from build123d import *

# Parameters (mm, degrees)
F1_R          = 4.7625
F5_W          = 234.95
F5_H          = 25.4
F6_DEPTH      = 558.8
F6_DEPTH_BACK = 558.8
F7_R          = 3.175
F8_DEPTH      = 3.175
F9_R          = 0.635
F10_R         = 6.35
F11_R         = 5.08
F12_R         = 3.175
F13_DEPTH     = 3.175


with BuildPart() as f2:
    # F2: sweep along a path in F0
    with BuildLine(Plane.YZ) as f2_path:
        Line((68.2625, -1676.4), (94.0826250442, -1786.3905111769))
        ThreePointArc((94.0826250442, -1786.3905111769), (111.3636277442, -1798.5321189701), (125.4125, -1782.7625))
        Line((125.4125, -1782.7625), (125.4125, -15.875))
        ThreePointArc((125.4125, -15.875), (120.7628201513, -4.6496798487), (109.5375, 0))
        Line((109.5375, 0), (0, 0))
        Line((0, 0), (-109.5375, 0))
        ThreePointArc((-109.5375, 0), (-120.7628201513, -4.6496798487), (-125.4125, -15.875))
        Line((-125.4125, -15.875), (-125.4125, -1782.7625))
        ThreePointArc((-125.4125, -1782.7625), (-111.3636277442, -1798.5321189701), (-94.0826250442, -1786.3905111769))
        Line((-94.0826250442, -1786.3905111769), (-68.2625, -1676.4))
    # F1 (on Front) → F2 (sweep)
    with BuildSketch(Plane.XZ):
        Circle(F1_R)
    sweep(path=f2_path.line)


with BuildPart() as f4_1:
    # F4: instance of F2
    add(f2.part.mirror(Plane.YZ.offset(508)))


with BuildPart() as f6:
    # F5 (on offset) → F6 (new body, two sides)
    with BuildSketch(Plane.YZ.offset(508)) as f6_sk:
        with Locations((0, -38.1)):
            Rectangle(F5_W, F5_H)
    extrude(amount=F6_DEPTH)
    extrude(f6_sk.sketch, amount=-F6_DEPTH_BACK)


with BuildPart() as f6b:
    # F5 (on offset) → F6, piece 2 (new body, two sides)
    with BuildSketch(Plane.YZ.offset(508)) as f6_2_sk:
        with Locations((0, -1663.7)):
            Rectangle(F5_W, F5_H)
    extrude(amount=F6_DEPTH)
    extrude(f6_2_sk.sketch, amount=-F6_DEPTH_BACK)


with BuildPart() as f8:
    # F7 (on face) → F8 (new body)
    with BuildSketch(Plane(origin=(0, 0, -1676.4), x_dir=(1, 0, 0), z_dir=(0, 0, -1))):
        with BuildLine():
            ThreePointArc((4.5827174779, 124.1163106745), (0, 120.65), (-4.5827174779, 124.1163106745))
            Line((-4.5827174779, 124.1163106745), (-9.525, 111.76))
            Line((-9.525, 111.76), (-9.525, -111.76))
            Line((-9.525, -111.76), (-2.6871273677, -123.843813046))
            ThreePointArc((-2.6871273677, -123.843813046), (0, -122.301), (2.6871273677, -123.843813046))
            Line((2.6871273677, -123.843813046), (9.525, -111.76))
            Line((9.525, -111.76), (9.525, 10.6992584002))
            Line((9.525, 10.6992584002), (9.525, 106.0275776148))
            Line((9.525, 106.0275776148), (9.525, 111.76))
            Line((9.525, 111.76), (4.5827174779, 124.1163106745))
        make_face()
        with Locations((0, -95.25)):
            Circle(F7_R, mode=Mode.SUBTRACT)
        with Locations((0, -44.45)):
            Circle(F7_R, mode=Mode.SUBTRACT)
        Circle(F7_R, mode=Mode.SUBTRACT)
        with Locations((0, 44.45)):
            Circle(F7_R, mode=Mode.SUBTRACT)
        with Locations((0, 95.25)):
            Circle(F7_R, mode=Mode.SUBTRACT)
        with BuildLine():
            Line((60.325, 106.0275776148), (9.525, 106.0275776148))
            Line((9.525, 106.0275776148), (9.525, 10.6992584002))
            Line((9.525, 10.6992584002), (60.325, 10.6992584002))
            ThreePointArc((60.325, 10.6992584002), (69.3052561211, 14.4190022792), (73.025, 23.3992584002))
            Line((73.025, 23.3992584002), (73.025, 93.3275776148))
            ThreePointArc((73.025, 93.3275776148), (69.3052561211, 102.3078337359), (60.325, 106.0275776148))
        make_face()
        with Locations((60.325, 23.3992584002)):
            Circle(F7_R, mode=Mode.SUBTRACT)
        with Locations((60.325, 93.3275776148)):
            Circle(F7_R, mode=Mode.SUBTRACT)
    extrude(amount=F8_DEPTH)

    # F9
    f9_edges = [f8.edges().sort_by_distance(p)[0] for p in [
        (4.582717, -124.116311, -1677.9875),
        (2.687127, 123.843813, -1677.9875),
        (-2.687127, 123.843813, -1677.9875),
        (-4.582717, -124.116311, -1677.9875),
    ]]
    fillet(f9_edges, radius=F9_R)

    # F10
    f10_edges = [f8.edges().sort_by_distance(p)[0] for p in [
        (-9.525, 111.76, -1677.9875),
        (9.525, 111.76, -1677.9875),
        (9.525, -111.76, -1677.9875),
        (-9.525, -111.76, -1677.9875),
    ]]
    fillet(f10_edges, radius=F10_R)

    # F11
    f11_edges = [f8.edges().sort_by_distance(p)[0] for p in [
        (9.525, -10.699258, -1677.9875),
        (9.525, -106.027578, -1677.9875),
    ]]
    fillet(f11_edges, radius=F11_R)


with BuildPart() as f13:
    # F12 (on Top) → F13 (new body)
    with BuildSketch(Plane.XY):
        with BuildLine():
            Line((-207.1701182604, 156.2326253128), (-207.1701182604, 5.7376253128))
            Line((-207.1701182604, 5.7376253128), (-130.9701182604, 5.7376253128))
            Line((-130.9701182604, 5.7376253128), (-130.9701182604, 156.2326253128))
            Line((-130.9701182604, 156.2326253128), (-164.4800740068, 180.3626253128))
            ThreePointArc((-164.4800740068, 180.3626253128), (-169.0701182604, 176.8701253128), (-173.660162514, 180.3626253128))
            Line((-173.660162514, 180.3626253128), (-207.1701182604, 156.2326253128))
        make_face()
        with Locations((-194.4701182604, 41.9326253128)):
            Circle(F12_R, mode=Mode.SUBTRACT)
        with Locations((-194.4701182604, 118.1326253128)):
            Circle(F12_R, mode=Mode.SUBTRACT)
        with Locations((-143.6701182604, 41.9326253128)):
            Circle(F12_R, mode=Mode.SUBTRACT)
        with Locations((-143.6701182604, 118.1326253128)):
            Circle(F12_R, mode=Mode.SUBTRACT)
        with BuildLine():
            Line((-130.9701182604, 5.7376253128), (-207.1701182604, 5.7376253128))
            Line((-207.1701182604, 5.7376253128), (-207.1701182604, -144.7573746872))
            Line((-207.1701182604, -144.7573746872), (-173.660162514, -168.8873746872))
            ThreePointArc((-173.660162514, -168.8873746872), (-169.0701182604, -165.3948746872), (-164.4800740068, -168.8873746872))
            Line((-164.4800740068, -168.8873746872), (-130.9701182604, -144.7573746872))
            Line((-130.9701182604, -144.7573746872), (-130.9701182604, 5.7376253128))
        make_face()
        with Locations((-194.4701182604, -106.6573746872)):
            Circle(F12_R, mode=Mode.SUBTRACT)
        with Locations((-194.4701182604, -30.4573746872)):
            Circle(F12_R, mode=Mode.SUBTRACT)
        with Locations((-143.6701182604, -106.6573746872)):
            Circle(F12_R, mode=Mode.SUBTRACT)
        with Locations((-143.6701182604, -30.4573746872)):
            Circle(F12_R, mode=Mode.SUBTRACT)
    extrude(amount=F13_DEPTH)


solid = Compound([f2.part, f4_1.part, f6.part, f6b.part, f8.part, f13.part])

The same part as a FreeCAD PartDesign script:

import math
import FreeCAD as App
import Part
import Sketcher
from FreeCAD import Vector
Q = App.Units.Quantity


def edges_at(feature, points):
    """Names of the edges that pass closest to the given points."""
    edges = feature.Shape.Edges
    near = lambda p: min(range(len(edges)), key=lambda i: edges[i].distToShape(Part.Vertex(*p))[0])
    return sorted({f"Edge{near(p) + 1}" for p in points})


def add_polygon(sketch, points):
    """Adds a closed chain of lines whose ends are joined by coincident constraints."""
    first, n = sketch.GeometryCount, len(points)
    for a, b in zip(points, points[1:] + points[:1]):
        sketch.addGeometry(Part.LineSegment(App.Vector(*a, 0), App.Vector(*b, 0)), False)
    for i in range(n):
        sketch.addConstraint(Sketcher.Constraint("Coincident", first + i, 2, first + (i + 1) % n, 1))

doc = App.newDocument("Part")
body = doc.addObject("PartDesign::Body", "Body")

# Sketch on XZ plane
sketch1 = body.newObject("Sketcher::SketchObject", "Sketch")
sketch1.AttachmentSupport = (doc.getObject("XZ_Plane"), [""])
sketch1.MapMode = "FlatFace"
sketch1.addGeometry(Part.Circle(Vector(0, 0, 0), Vector(0, 0, 1), 4.8), False)
sketch1.addConstraint([
    Sketcher.Constraint("Coincident", 0, 3, -1, 1),
    Sketcher.Constraint("Diameter", 0, Q("0.375 in")),
])

# Sketch on YZ plane
sketch2 = body.newObject("Sketcher::SketchObject", "Sketch001")
sketch2.AttachmentSupport = (doc.getObject("YZ_Plane"), [""])
sketch2.MapMode = "FlatFace"
sketch2.addGeometry([
    Part.LineSegment(Vector(68, -1676, 0), Vector(94, -1786, 0)),  # 0
    Part.ArcOfCircle(Part.Circle(Vector(110, -1783, 0), Vector(0, 0, 1), 16), math.radians(-167), math.radians(0)),  # 1
    Part.LineSegment(Vector(125, -1783, 0), Vector(125, -16, 0)),  # 2
    Part.ArcOfCircle(Part.Circle(Vector(110, -16, 0), Vector(0, 0, 1), 16), math.radians(0), math.radians(90)),  # 3
    Part.LineSegment(Vector(110, 0, 0), Vector(-110, 0, 0)),  # 4
    Part.ArcOfCircle(Part.Circle(Vector(-110, -16, 0), Vector(0, 0, 1), 16), math.radians(90), math.radians(180)),  # 5
    Part.LineSegment(Vector(-125, -16, 0), Vector(-125, -1783, 0)),  # 6
    Part.ArcOfCircle(Part.Circle(Vector(-110, -1783, 0), Vector(0, 0, 1), 16), math.radians(180), math.radians(347)),  # 7
    Part.LineSegment(Vector(-94, -1786, 0), Vector(-68, -1676, 0)),  # 8
], False)
sketch2.addConstraint([
    Sketcher.Constraint("Tangent", 0, 2, 1, 1),
    Sketcher.Constraint("Tangent", 1, 2, 2, 1),
    Sketcher.Constraint("Tangent", 2, 2, 3, 1),
    Sketcher.Constraint("Tangent", 3, 2, 4, 1),
    Sketcher.Constraint("Tangent", 4, 2, 5, 1),
    Sketcher.Constraint("Tangent", 5, 2, 6, 1),
    Sketcher.Constraint("Tangent", 6, 2, 7, 1),
    Sketcher.Constraint("Tangent", 7, 2, 8, 1),
    Sketcher.Constraint("Vertical", 2),
    Sketcher.Constraint("Horizontal", 4),
    Sketcher.Constraint("Vertical", 6),
    Sketcher.Constraint("Equal", 1, 3),
    Sketcher.Constraint("Equal", 3, 5),
    Sketcher.Constraint("Equal", 5, 7),
    Sketcher.Constraint("Symmetric", 3, 2, 4, 2, -1, 1),
    Sketcher.Constraint("Symmetric", 0, 2, 7, 2, -2),
    Sketcher.Constraint("Horizontal", 0, 1, 8, 2),
    Sketcher.Constraint("DistanceY", 0, 1, -1, 1, Q("66 in")),
    Sketcher.Constraint("Radius", 1, Q("0.625 in")),
    Sketcher.Constraint("DistanceX", 7, 3, 0, 1, Q("7 in")),
    Sketcher.Constraint("DistanceX", 4, 2, 4, 1, Q("8.625 in")),
    Sketcher.Constraint("DistanceY", 2, 1, 2, 2, Q("69.5625 in")),
])
doc.recompute()

additivepipe = body.newObject("PartDesign::AdditivePipe", "AdditivePipe")
additivepipe.Profile = sketch1
additivepipe.Spine = (sketch2, ["Edge1", "Edge2", "Edge3", "Edge4", "Edge5", "Edge6", "Edge7", "Edge8", "Edge9"])
body2 = doc.addObject("PartDesign::Body", "Body001")
doc.recompute()

mirroring = doc.addObject("Part::Mirroring", "Mirroring")
mirroring.Source = body
mirroring.Base = Vector(508, 0, 0)
mirroring.Normal = Vector(1, 0, 0)
body2.BaseFeature = mirroring
doc.recompute()
body3 = doc.addObject("PartDesign::Body", "Body002")

# Sketch on YZ plane
sketch3 = body3.newObject("Sketcher::SketchObject", "Sketch002")
sketch3.AttachmentSupport = (doc.getObject("YZ_Plane002"), [""])
sketch3.MapMode = "FlatFace"
sketch3.AttachmentOffset = App.Placement(Vector(0, 0, 20 * 25.4), App.Rotation())
add_polygon(sketch3, [(-117, -25), (-117, -51), (117, -51), (117, -25)])  # lines 0-3
sketch3.addConstraint([
    Sketcher.Constraint("Vertical", 0),
    Sketcher.Constraint("Horizontal", 1),
    Sketcher.Constraint("Vertical", 2),
    Sketcher.Constraint("Horizontal", 3),
    Sketcher.Constraint("DistanceY", 0, 2, 0, 1, Q("1 in")),
    Sketcher.Constraint("DistanceY", 0, 2, -1, 1, Q("2 in")),
    Sketcher.Constraint("DistanceX", 1, 1, 1, 2, Q("9.25 in")),
    Sketcher.Constraint("DistanceX", 0, 2, -1, 1, Q("4.625 in")),
])
pad1 = body3.newObject("PartDesign::Pad", "Pad")
pad1.Profile = sketch3
pad1.Type = "TwoLengths"
pad1.Length = Q("22 in")
pad1.Length2 = Q("22 in")
body4 = doc.addObject("PartDesign::Body", "Body003")

# Sketch on YZ plane
sketch4 = body4.newObject("Sketcher::SketchObject", "Sketch003")
sketch4.AttachmentSupport = (doc.getObject("YZ_Plane003"), [""])
sketch4.MapMode = "FlatFace"
sketch4.AttachmentOffset = App.Placement(Vector(0, 0, 20 * 25.4), App.Rotation())
add_polygon(sketch4, [(-117, -1651), (-117, -1676), (117, -1676), (117, -1651)])  # lines 0-3
sketch4.addConstraint([
    Sketcher.Constraint("Vertical", 0),
    Sketcher.Constraint("Horizontal", 1),
    Sketcher.Constraint("Vertical", 2),
    Sketcher.Constraint("Horizontal", 3),
    Sketcher.Constraint("DistanceY", 0, 2, 0, 1, Q("1 in")),
    Sketcher.Constraint("DistanceY", 0, 2, -1, 1, Q("66 in")),
    Sketcher.Constraint("DistanceX", 1, 1, 1, 2, Q("9.25 in")),
    Sketcher.Constraint("DistanceX", 0, 2, -1, 1, Q("4.625 in")),
])
pad2 = body4.newObject("PartDesign::Pad", "Pad001")
pad2.Profile = sketch4
pad2.Type = "TwoLengths"
pad2.Length = Q("22 in")
pad2.Length2 = Q("22 in")
body5 = doc.addObject("PartDesign::Body", "Body004")

# Sketch on XY plane
sketch5 = body5.newObject("Sketcher::SketchObject", "Sketch004")
sketch5.AttachmentSupport = (doc.getObject("XY_Plane004"), [""])
sketch5.MapMode = "FlatFace"
sketch5.AttachmentOffset = App.Placement(Vector(0, 0, -66 * 25.4), App.Rotation())
sketch5.addGeometry([
    Part.ArcOfCircle(Part.Circle(Vector(0, -125.4, 0), Vector(0, 0, 1), 4.8), math.radians(16), math.radians(164)),  # 0
    Part.LineSegment(Vector(-4.6, -124.1, 0), Vector(-9.5, -111.8, 0)),  # 1
    Part.LineSegment(Vector(-9.5, -111.8, 0), Vector(-9.5, 111.8, 0)),  # 2
    Part.LineSegment(Vector(-9.5, 111.8, 0), Vector(-2.7, 123.8, 0)),  # 3
    Part.ArcOfCircle(Part.Circle(Vector(0, 125.4, 0), Vector(0, 0, 1), 3.1), math.radians(-150), math.radians(-30)),  # 4
    Part.LineSegment(Vector(2.7, 123.8, 0), Vector(9.5, 111.8, 0)),  # 5
    Part.LineSegment(Vector(9.5, 111.8, 0), Vector(9.5, -10.7, 0)),  # 6
    Part.LineSegment(Vector(9.5, -10.7, 0), Vector(60.3, -10.7, 0)),  # 7
    Part.ArcOfCircle(Part.Circle(Vector(60.3, -23.4, 0), Vector(0, 0, 1), 12.7), math.radians(0), math.radians(90)),  # 8
    Part.LineSegment(Vector(73, -23.4, 0), Vector(73, -93.3, 0)),  # 9
    Part.ArcOfCircle(Part.Circle(Vector(60.3, -93.3, 0), Vector(0, 0, 1), 12.7), math.radians(-90), math.radians(0)),  # 10
    Part.LineSegment(Vector(60.3, -106, 0), Vector(9.5, -106, 0)),  # 11
    Part.LineSegment(Vector(9.5, -106, 0), Vector(9.5, -111.8, 0)),  # 12
    Part.LineSegment(Vector(9.5, -111.8, 0), Vector(4.6, -124.1, 0)),  # 13
    Part.Circle(Vector(0, 95.2, 0), Vector(0, 0, 1), 3.2),  # 14
    Part.Circle(Vector(0, 44.5, 0), Vector(0, 0, 1), 3.2),  # 15
    Part.Circle(Vector(0, 0, 0), Vector(0, 0, 1), 3.2),  # 16
    Part.Circle(Vector(0, -44.5, 0), Vector(0, 0, 1), 3.2),  # 17
    Part.Circle(Vector(0, -95.2, 0), Vector(0, 0, 1), 3.2),  # 18
    Part.Circle(Vector(60.3, -23.4, 0), Vector(0, 0, 1), 3.2),  # 19
    Part.Circle(Vector(60.3, -93.3, 0), Vector(0, 0, 1), 3.2),  # 20
], False)
sketch5.addConstraint([
    Sketcher.Constraint("Coincident", 0, 2, 1, 1),
    Sketcher.Constraint("Coincident", 1, 2, 2, 1),
    Sketcher.Constraint("Coincident", 2, 2, 3, 1),
    Sketcher.Constraint("Coincident", 3, 2, 4, 1),
    Sketcher.Constraint("Coincident", 4, 2, 5, 1),
    Sketcher.Constraint("Coincident", 5, 2, 6, 1),
    Sketcher.Constraint("Coincident", 6, 2, 7, 1),
    Sketcher.Constraint("Tangent", 7, 2, 8, 2),
    Sketcher.Constraint("Tangent", 8, 1, 9, 1),
    Sketcher.Constraint("Tangent", 9, 2, 10, 2),
    Sketcher.Constraint("Tangent", 10, 1, 11, 1),
    Sketcher.Constraint("Coincident", 11, 2, 12, 1),
    Sketcher.Constraint("Coincident", 12, 2, 13, 1),
    Sketcher.Constraint("Coincident", 13, 2, 0, 1),
    Sketcher.Constraint("Vertical", 2),
    Sketcher.Constraint("Vertical", 6),
    Sketcher.Constraint("Horizontal", 7),
    Sketcher.Constraint("Vertical", 9),
    Sketcher.Constraint("Horizontal", 11),
    Sketcher.Constraint("Vertical", 12),
    Sketcher.Constraint("Coincident", 16, 3, -1, 1),
    Sketcher.Constraint("Coincident", 19, 3, 8, 3),
    Sketcher.Constraint("Coincident", 20, 3, 10, 3),
    Sketcher.Constraint("Equal", 8, 10),
    Sketcher.Constraint("Equal", 14, 15),
    Sketcher.Constraint("Equal", 15, 16),
    Sketcher.Constraint("Equal", 16, 17),
    Sketcher.Constraint("Equal", 17, 18),
    Sketcher.Constraint("Equal", 18, 19),
    Sketcher.Constraint("Equal", 19, 20),
    Sketcher.Constraint("Symmetric", 0, 3, 4, 3, -1, 1),
    Sketcher.Constraint("Symmetric", 15, 3, 17, 3, -1, 1),
    Sketcher.Constraint("Symmetric", 14, 3, 18, 3, -1, 1),
    Sketcher.Constraint("Symmetric", 1, 2, 5, 2, -1, 1),
    Sketcher.Constraint("Symmetric", 2, 2, 12, 2, -1, 1),
    Sketcher.Constraint("Symmetric", 3, 2, 4, 2, -2),
    Sketcher.Constraint("PointOnObject", 14, 3, -2),
    Sketcher.Constraint("PointOnObject", 15, 3, -2),
    Sketcher.Constraint("Horizontal", 2, 2, 5, 2),
    Sketcher.Constraint("Horizontal", 0, 2, 13, 2),
    Sketcher.Constraint("Radius", 8, Q("0.5 in")),
    Sketcher.Constraint("Diameter", 14, Q("0.25 in")),
    Sketcher.Constraint("DistanceX", 7, 1, 7, 2, Q("2 in")),
    Sketcher.Constraint("DistanceY", 2, 1, 2, 2, Q("8.8 in")),
    Sketcher.Constraint("Radius", 0, Q("0.1875 in")),
    Sketcher.Constraint("DistanceY", 15, 3, 14, 3, Q("2 in")),
    Sketcher.Constraint("Radius", 4, Q("0.1225 in")),
    Sketcher.Constraint("DistanceY", 17, 3, 15, 3, Q("3.5 in")),
    Sketcher.Constraint("DistanceX", 1, 2, 10, 3, Q("2.75 in")),
    Sketcher.Constraint("DistanceY", 0, 3, -1, 1, Q("4.9375 in")),
    Sketcher.Constraint("DistanceY", 6, 2, 6, 1, 122.459258),
    Sketcher.Constraint("DistanceY", 9, 2, 9, 1, 69.928319),
    Sketcher.Constraint("DistanceY", 0, 2, -1, 1, 124.116311),
    Sketcher.Constraint("Distance", 3, 13.884345),
])
pad3 = body5.newObject("PartDesign::Pad", "Pad002")
pad3.Profile = sketch5
pad3.Length = Q("0.125 in")
pad3.Reversed = True
doc.recompute()

fillet = body5.newObject("PartDesign::Fillet", "Fillet")
fillet.Base = (pad3, edges_at(pad3, [
    (4.583, -124.116, -1677.987),
    (2.687, 123.844, -1677.987),
    (-2.687, 123.844, -1677.987),
    (-4.583, -124.116, -1677.987),
]))
fillet.Radius = Q("0.025 in")
doc.recompute()

fillet2 = body5.newObject("PartDesign::Fillet", "Fillet001")
fillet2.Base = (fillet, edges_at(fillet, [
    (-9.525, 111.76, -1677.987),
    (9.525, 111.76, -1677.987),
    (9.525, -111.76, -1677.987),
    (-9.525, -111.76, -1677.987),
]))
fillet2.Radius = Q("0.25 in")
doc.recompute()

fillet3 = body5.newObject("PartDesign::Fillet", "Fillet002")
fillet3.Base = (fillet2, edges_at(fillet2, [(9.525, -10.699, -1677.987), (9.525, -106.028, -1677.987)]))
fillet3.Radius = Q("0.2 in")
body6 = doc.addObject("PartDesign::Body", "Body005")

# Sketch on XY plane
sketch6 = body6.newObject("Sketcher::SketchObject", "Sketch005")
sketch6.AttachmentSupport = (doc.getObject("XY_Plane005"), [""])
sketch6.MapMode = "FlatFace"
sketch6.addGeometry([
    Part.LineSegment(Vector(-207.2, 156.2, 0), Vector(-207.2, -144.8, 0)),  # 0
    Part.LineSegment(Vector(-207.2, -144.8, 0), Vector(-173.7, -168.9, 0)),  # 1
    Part.ArcOfCircle(Part.Circle(Vector(-169.1, -170.2, 0), Vector(0, 0, 1), 4.8), math.radians(15), math.radians(165)),  # 2
    Part.LineSegment(Vector(-164.5, -168.9, 0), Vector(-131, -144.8, 0)),  # 3
    Part.LineSegment(Vector(-131, -144.8, 0), Vector(-131, 156.2, 0)),  # 4
    Part.LineSegment(Vector(-131, 156.2, 0), Vector(-164.5, 180.4, 0)),  # 5
    Part.ArcOfCircle(Part.Circle(Vector(-169.1, 181.6, 0), Vector(0, 0, 1), 4.8), math.radians(-165), math.radians(-15)),  # 6
    Part.LineSegment(Vector(-173.7, 180.4, 0), Vector(-207.2, 156.2, 0)),  # 7
    Part.Circle(Vector(-194.5, -106.7, 0), Vector(0, 0, 1), 3.2),  # 8
    Part.Circle(Vector(-194.5, -30.5, 0), Vector(0, 0, 1), 3.2),  # 9
    Part.Circle(Vector(-143.7, -106.7, 0), Vector(0, 0, 1), 3.2),  # 10
    Part.Circle(Vector(-143.7, -30.5, 0), Vector(0, 0, 1), 3.2),  # 11
    Part.Circle(Vector(-194.5, 41.9, 0), Vector(0, 0, 1), 3.2),  # 12
    Part.Circle(Vector(-194.5, 118.1, 0), Vector(0, 0, 1), 3.2),  # 13
    Part.Circle(Vector(-143.7, 41.9, 0), Vector(0, 0, 1), 3.2),  # 14
    Part.Circle(Vector(-143.7, 118.1, 0), Vector(0, 0, 1), 3.2),  # 15
], False)
sketch6.addConstraint([
    Sketcher.Constraint("Coincident", 0, 2, 1, 1),
    Sketcher.Constraint("Coincident", 1, 2, 2, 2),
    Sketcher.Constraint("Coincident", 2, 1, 3, 1),
    Sketcher.Constraint("Coincident", 3, 2, 4, 1),
    Sketcher.Constraint("Coincident", 4, 2, 5, 1),
    Sketcher.Constraint("Coincident", 5, 2, 6, 2),
    Sketcher.Constraint("Coincident", 6, 1, 7, 1),
    Sketcher.Constraint("Coincident", 7, 2, 0, 1),
    Sketcher.Constraint("Vertical", 0),
    Sketcher.Constraint("Vertical", 4),
    Sketcher.Constraint("Equal", 2, 6),
    Sketcher.Constraint("Equal", 8, 9),
    Sketcher.Constraint("Equal", 9, 10),
    Sketcher.Constraint("Equal", 10, 11),
    Sketcher.Constraint("Equal", 11, 12),
    Sketcher.Constraint("Equal", 12, 13),
    Sketcher.Constraint("Equal", 13, 14),
    Sketcher.Constraint("Equal", 14, 15),
    Sketcher.Constraint("Parallel", 1, 5),
    Sketcher.Constraint("Parallel", 3, 7),
    Sketcher.Constraint("Horizontal", 8, 3, 10, 3),
    Sketcher.Constraint("Horizontal", 9, 3, 11, 3),
    Sketcher.Constraint("Horizontal", 12, 3, 14, 3),
    Sketcher.Constraint("Horizontal", 13, 3, 15, 3),
    Sketcher.Constraint("Horizontal", 1, 2, 2, 1),
    Sketcher.Constraint("Horizontal", 0, 2, 3, 2),
    Sketcher.Constraint("Horizontal", 5, 2, 6, 1),
    Sketcher.Constraint("Horizontal", 4, 2, 7, 2),
    Sketcher.Constraint("Vertical", 2, 3, 6, 3),
    Sketcher.Constraint("Vertical", 8, 3, 9, 3),
    Sketcher.Constraint("Vertical", 10, 3, 11, 3),
    Sketcher.Constraint("Vertical", 9, 3, 12, 3),
    Sketcher.Constraint("Vertical", 12, 3, 13, 3),
    Sketcher.Constraint("Vertical", 11, 3, 14, 3),
    Sketcher.Constraint("Vertical", 14, 3, 15, 3),
    Sketcher.Constraint("Vertical", 2, 1, 5, 2),
    Sketcher.Constraint("Diameter", 8, Q("0.25 in")),
    Sketcher.Constraint("Radius", 2, Q("0.1875 in")),
    Sketcher.Constraint("DistanceX", 8, 3, 2, 3, Q("1 in")),
    Sketcher.Constraint("DistanceY", 8, 3, 9, 3, Q("3 in")),
    Sketcher.Constraint("DistanceX", 8, 3, 10, 3, Q("2 in")),
    Sketcher.Constraint("DistanceY", 12, 3, 13, 3, Q("3 in")),
    Sketcher.Constraint("DistanceY", 2, 3, 0, 2, Q("1 in")),
    Sketcher.Constraint("DistanceY", 0, 2, 0, 1, Q("11.85 in")),
    Sketcher.Constraint("DistanceY", 2, 3, 8, 3, Q("2.5 in")),
    Sketcher.Constraint("DistanceY", 12, 3, 6, 3, Q("5.5 in")),
    Sketcher.Constraint("DistanceX", 0, 2, 8, 3, Q("0.5 in")),
    Sketcher.Constraint("DistanceY", 2, 3, 1, 2, Q("0.05 in")),
    Sketcher.Constraint("DistanceX", 2, 3, -1, 1, 169.070118),
    Sketcher.Constraint("DistanceY", 2, 3, -1, 1, 170.157375),
])
pad4 = body6.newObject("PartDesign::Pad", "Pad003")
pad4.Profile = sketch6
pad4.Length = Q("0.125 in")
mirroring.Visibility = False

doc.recompute()
